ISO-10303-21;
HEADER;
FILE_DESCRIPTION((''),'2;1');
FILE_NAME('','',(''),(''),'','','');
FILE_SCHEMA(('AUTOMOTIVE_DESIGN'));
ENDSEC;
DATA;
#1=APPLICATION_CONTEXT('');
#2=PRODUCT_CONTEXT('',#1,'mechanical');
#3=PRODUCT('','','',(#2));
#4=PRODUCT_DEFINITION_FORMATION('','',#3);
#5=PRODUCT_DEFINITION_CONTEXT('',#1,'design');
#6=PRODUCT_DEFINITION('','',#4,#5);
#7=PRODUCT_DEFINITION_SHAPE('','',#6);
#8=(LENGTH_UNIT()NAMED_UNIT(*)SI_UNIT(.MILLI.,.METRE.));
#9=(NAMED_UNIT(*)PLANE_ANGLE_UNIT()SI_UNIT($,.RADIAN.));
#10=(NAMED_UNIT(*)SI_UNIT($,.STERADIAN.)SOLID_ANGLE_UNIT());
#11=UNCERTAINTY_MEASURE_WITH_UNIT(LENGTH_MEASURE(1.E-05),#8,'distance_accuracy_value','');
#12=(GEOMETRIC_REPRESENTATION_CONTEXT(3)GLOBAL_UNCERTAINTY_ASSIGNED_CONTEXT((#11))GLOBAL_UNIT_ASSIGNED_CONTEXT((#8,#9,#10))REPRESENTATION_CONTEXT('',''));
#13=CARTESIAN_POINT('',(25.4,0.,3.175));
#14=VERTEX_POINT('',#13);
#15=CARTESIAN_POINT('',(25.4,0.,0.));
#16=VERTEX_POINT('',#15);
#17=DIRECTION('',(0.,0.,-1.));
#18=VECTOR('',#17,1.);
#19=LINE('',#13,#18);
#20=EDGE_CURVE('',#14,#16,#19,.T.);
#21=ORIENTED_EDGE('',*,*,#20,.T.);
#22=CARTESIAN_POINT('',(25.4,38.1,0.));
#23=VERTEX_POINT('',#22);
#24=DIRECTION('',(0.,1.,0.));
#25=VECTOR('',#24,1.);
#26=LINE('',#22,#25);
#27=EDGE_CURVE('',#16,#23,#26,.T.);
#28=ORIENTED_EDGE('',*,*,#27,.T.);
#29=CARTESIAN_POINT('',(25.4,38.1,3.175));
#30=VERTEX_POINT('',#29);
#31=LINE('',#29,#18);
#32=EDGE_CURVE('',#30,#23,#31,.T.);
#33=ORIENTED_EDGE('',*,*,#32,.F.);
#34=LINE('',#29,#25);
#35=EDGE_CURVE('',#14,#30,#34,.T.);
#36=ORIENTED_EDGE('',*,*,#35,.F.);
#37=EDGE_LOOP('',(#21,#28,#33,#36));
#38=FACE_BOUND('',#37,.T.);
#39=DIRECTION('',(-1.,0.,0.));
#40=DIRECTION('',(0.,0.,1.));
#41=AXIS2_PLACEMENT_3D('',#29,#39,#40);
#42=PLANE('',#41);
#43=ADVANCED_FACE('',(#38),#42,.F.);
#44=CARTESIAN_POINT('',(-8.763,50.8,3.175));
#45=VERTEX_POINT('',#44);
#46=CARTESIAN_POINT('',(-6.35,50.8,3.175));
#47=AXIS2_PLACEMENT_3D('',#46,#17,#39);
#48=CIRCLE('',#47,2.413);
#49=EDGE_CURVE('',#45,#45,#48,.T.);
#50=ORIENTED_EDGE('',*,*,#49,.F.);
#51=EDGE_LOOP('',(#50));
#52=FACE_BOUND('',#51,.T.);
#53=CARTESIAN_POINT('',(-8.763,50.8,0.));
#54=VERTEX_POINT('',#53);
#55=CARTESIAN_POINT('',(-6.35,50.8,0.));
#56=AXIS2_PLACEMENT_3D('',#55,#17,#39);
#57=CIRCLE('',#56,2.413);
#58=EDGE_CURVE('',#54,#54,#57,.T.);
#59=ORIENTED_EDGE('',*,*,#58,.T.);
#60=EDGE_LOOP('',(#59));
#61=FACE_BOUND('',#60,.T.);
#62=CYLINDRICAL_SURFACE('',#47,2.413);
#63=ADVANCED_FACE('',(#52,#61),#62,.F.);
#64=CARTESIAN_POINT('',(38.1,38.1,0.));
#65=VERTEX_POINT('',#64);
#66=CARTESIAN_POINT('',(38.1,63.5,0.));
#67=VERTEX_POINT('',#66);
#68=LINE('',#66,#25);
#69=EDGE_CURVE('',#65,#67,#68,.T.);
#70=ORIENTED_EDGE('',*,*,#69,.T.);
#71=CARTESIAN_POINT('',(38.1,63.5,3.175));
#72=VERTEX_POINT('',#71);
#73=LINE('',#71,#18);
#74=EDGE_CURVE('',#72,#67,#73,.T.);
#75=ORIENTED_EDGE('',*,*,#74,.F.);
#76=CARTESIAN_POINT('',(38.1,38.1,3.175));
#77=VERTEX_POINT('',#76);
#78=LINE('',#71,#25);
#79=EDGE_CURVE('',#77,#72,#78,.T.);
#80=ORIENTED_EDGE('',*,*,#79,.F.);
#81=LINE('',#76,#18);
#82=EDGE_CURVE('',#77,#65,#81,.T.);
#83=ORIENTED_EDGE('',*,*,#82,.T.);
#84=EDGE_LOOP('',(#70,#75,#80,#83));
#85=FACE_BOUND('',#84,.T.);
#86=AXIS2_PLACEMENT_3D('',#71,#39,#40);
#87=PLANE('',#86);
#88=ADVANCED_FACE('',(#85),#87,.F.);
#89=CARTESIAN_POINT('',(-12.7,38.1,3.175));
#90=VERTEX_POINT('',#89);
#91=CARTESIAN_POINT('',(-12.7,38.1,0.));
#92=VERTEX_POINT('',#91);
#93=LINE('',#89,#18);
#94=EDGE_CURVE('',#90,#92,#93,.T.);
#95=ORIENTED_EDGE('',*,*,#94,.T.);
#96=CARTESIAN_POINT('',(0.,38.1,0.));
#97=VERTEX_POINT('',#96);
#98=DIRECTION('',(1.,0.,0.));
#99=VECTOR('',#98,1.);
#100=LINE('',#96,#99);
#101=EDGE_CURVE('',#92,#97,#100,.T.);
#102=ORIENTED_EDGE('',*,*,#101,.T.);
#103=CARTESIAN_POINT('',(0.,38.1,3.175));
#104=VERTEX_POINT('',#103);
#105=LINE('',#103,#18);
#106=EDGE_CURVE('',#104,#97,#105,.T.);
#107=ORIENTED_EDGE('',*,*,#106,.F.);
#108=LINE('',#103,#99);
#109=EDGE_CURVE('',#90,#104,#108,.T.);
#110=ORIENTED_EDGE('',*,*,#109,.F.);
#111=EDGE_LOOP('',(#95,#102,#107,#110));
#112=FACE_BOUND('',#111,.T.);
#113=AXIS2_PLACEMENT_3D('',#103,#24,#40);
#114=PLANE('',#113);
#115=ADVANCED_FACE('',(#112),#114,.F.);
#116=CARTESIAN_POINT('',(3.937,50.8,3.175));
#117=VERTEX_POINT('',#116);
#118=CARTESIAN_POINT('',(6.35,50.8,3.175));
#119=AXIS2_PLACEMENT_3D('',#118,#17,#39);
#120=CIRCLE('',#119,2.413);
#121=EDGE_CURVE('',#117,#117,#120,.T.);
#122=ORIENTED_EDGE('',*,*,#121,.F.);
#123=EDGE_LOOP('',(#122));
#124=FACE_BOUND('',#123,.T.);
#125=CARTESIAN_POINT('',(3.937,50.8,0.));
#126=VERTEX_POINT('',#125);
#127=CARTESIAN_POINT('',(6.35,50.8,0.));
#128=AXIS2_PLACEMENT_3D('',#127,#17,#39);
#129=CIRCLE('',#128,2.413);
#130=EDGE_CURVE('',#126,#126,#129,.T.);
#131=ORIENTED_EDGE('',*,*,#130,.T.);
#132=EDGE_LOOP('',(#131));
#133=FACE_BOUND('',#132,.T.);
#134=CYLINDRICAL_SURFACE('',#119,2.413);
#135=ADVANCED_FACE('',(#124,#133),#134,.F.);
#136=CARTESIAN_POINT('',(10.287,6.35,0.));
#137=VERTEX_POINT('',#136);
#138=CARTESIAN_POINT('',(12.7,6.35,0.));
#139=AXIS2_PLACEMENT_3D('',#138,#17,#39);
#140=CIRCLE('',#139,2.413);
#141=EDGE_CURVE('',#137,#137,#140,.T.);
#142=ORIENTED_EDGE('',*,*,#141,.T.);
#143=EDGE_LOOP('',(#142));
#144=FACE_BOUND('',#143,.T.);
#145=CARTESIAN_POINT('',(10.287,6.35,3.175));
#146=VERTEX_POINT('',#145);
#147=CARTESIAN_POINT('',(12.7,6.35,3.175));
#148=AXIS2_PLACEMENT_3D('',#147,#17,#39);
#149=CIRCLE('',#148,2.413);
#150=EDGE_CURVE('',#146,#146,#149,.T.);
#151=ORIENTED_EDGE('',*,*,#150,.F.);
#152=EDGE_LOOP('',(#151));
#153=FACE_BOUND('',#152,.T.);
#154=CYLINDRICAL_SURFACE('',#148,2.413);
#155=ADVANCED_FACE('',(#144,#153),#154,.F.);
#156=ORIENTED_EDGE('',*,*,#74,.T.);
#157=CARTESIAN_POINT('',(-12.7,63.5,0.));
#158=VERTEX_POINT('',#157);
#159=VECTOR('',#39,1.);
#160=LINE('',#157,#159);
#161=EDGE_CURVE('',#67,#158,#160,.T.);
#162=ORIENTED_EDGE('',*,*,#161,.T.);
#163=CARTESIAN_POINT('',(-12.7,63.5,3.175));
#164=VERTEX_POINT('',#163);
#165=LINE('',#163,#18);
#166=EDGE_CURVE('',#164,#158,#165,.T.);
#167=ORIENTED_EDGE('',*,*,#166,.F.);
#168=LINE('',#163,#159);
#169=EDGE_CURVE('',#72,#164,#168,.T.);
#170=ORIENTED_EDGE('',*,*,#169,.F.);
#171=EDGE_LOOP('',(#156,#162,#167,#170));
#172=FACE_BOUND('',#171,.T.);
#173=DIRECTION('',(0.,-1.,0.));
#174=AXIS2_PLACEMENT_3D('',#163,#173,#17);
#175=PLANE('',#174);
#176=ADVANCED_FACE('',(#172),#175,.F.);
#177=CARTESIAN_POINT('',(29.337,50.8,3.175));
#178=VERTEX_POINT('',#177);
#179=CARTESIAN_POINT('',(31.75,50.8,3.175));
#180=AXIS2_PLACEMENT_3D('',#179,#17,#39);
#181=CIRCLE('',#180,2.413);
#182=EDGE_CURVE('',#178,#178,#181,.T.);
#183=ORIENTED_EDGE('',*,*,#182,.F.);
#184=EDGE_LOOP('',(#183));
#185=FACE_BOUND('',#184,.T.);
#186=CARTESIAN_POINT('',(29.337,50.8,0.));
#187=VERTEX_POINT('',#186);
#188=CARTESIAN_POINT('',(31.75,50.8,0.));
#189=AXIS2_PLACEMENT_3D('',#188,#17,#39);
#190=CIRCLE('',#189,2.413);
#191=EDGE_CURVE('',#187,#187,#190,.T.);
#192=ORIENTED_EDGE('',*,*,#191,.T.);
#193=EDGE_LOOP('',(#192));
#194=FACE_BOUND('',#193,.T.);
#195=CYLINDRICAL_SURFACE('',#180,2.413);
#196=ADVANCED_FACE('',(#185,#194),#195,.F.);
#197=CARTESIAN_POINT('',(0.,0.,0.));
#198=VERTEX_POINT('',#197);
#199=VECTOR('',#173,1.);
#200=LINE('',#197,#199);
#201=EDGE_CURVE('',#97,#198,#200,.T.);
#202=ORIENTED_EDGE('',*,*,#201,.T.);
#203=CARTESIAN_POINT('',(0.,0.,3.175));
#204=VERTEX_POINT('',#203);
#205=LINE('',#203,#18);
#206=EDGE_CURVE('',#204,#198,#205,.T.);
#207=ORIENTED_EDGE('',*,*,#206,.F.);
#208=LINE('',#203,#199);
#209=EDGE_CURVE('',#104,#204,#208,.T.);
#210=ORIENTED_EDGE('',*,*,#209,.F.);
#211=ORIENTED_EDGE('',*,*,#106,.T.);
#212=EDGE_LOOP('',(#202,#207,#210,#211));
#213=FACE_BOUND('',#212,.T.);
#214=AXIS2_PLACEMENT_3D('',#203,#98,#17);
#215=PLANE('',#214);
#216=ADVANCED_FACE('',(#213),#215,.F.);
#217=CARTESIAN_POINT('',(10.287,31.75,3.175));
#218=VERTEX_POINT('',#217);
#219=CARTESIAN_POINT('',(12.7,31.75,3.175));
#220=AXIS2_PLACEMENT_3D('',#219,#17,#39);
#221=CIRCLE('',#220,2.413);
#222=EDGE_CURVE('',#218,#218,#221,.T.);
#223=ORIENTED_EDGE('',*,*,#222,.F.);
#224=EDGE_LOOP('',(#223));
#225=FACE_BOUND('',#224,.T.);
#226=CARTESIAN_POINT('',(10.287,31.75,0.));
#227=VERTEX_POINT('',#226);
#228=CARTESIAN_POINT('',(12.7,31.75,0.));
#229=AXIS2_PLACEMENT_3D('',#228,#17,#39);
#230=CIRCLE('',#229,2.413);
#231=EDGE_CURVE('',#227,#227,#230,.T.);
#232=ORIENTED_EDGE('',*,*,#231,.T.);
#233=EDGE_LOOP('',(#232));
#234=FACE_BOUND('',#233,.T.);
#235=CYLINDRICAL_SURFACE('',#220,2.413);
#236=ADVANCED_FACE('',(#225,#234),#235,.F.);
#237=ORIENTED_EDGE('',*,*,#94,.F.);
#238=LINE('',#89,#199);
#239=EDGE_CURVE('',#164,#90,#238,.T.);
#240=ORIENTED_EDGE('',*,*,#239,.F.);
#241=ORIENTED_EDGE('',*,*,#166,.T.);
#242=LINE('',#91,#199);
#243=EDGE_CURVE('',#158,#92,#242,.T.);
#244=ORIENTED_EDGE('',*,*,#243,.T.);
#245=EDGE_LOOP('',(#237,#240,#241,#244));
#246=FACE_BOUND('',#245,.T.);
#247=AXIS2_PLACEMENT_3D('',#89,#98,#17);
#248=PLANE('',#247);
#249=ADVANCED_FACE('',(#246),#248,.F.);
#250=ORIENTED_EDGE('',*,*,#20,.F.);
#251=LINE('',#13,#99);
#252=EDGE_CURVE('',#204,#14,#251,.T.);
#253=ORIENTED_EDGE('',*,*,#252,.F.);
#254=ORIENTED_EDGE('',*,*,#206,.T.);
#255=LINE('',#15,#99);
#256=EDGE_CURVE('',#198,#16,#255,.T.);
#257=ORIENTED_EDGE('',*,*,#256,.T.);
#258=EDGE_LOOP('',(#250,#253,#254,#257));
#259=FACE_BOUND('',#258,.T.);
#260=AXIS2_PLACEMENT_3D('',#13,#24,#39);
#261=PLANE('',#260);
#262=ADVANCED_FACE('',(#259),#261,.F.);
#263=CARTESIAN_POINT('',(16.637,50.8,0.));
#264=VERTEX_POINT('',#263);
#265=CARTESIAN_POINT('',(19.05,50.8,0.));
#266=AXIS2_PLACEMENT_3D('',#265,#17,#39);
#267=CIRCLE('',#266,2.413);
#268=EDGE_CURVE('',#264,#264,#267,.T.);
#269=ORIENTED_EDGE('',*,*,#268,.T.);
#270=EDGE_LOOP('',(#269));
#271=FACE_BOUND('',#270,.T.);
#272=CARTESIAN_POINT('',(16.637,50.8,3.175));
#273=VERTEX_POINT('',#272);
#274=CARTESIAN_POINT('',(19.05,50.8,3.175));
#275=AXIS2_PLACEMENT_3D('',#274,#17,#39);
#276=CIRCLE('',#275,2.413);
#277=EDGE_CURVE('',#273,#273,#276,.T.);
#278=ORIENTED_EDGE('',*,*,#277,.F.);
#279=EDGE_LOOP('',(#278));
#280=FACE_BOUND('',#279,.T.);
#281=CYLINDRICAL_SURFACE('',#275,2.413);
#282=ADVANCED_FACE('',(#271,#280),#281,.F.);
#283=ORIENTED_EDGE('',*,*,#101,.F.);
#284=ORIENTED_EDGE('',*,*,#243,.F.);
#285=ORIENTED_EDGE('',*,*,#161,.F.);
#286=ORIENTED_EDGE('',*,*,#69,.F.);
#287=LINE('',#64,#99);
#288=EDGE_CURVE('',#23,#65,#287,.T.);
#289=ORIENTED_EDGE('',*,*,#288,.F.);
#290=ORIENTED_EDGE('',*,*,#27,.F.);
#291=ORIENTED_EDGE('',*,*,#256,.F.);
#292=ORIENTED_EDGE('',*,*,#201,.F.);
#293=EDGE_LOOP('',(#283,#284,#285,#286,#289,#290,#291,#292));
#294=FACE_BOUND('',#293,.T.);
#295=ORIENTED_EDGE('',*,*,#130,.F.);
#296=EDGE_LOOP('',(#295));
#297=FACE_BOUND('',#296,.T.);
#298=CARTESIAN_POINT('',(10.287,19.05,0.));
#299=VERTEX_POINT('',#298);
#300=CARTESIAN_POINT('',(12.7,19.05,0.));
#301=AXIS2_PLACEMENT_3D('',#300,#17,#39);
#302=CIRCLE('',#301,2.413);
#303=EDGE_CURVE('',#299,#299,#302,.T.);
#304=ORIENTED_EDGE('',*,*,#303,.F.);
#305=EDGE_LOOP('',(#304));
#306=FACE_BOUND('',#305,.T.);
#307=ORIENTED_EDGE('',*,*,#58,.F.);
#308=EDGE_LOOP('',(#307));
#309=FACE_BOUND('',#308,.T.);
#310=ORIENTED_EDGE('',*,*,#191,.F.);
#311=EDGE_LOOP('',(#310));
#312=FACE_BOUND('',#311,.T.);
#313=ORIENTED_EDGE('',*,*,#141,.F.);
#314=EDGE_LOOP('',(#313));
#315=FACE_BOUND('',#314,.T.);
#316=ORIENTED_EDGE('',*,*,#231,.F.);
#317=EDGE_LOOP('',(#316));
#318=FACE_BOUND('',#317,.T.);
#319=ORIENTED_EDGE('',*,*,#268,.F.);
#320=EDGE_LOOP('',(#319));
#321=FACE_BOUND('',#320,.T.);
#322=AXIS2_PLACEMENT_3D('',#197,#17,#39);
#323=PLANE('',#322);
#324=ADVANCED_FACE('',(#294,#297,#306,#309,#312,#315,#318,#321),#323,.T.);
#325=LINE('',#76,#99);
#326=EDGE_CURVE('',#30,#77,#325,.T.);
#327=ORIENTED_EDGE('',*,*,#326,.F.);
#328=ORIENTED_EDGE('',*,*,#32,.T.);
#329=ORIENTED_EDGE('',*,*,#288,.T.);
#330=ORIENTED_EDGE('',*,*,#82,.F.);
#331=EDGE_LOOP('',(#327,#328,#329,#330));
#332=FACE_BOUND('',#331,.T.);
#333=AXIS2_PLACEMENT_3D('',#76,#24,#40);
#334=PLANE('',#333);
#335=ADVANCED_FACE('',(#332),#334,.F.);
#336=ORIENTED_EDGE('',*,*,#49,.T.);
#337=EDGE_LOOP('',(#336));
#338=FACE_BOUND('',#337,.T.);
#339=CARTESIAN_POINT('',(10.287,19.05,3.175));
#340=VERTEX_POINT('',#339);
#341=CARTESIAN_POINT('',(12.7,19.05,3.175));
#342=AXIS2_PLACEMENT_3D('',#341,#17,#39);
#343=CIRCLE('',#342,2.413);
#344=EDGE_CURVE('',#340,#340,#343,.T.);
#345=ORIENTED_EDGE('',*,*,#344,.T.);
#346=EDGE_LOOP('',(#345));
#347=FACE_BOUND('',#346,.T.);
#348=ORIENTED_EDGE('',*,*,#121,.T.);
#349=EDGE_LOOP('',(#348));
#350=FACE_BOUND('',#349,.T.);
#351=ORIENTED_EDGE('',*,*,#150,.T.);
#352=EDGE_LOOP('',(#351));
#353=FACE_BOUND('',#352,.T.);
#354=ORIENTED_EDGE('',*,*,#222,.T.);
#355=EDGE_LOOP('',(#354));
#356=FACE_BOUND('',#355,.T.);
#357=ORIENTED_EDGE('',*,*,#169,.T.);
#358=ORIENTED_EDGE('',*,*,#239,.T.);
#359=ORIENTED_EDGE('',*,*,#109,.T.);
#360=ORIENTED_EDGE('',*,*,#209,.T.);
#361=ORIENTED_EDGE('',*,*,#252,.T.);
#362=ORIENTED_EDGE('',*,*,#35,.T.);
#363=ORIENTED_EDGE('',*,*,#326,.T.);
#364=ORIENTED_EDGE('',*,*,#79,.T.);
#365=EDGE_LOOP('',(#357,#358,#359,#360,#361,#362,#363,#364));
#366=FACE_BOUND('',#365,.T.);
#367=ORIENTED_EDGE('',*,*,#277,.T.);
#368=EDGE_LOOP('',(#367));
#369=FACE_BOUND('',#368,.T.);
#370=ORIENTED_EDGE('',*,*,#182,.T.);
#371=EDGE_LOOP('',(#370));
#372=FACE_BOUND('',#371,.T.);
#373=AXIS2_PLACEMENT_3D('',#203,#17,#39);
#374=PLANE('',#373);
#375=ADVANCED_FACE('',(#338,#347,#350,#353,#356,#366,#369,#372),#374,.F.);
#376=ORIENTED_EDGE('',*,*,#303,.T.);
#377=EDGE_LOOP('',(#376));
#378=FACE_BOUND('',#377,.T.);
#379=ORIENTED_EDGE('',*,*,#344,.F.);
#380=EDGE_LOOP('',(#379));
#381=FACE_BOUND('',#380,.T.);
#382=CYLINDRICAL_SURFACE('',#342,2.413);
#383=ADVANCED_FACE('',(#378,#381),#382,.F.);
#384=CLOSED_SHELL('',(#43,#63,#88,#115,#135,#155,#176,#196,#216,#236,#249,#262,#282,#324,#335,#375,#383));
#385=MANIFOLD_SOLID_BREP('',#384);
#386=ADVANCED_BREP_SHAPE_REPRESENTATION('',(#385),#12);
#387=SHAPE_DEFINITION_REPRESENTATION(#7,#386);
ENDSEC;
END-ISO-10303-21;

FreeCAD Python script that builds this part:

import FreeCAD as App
import Part
import Sketcher
Q = App.Units.Quantity


def add_polygon(sketch, points):
    """Adds a closed chain of lines whose ends are joined by coincident constraints."""
    first, n = sketch.GeometryCount, len(points)
    for a, b in zip(points, points[1:] + points[:1]):
        sketch.addGeometry(Part.LineSegment(App.Vector(*a, 0), App.Vector(*b, 0)), False)
    for i in range(n):
        sketch.addConstraint(Sketcher.Constraint("Coincident", first + i, 2, first + (i + 1) % n, 1))

doc = App.newDocument("Part")
params = doc.addObject("Spreadsheet::Sheet", "Params")
for row, (alias, value) in enumerate([
    ("sketch1_width", "1 in"),
    ("sketch1_width2", "2 in"),
    ("sketch1_height", "1.5 in"),
    ("pad1_length", "0.125 in"),
    ("sketch2_diameter", "0.19 in"),
    ("sketch3_diameter", "0.19 in"),
], start=1):
    params.set(f"A{row}", alias)
    params.set(f"B{row}", "=" + value)
    params.setAlias(f"B{row}", alias)

body = doc.addObject("PartDesign::Body", "Body")

sketch1 = doc.addObject("Sketcher::SketchObject", "Sketch")
body.addObject(sketch1)
sketch1.AttachmentSupport = (doc.XY_Plane, [""])
sketch1.MapMode = "FlatFace"
add_polygon(sketch1, [(0, 38), (0, 0), (25, 0), (25, 38), (38, 38), (38, 64), (-13, 64), (-13, 38)])
sketch1.addConstraint(Sketcher.Constraint("Vertical", 0))
sketch1.addConstraint(Sketcher.Constraint("Horizontal", 1))
sketch1.addConstraint(Sketcher.Constraint("Vertical", 2))
sketch1.addConstraint(Sketcher.Constraint("Horizontal", 3))
sketch1.addConstraint(Sketcher.Constraint("Vertical", 4))
sketch1.addConstraint(Sketcher.Constraint("Horizontal", 5))
sketch1.addConstraint(Sketcher.Constraint("Vertical", 6))
sketch1.addConstraint(Sketcher.Constraint("Horizontal", 7))
sketch1.addConstraint(Sketcher.Constraint("Coincident", 0, 2, -1, 1))
sketch1.addConstraint(Sketcher.Constraint("Horizontal", 3, 2, 6, 2))
sketch1.addConstraint(Sketcher.Constraint("Equal", 3, 7))
sketch1.addConstraint(Sketcher.Constraint("Equal", 1, 4))
sketch1.addConstraint(Sketcher.Constraint("DistanceX", 1, 1, 1, 2, Q("1 in")))
sketch1.addConstraint(Sketcher.Constraint("DistanceX", 5, 2, 5, 1, Q("2 in")))
sketch1.addConstraint(Sketcher.Constraint("DistanceY", 0, 2, 0, 1, Q("1.5 in")))
sketch1.setExpression("Constraints[20]", "Params.sketch1_width")
sketch1.setExpression("Constraints[21]", "Params.sketch1_width2")
sketch1.setExpression("Constraints[22]", "Params.sketch1_height")
pad1 = doc.addObject("PartDesign::Pad", "Pad")
body.addObject(pad1)
pad1.Profile = sketch1
pad1.setExpression("Length", "Params.pad1_length")

sketch2 = doc.addObject("Sketcher::SketchObject", "Sketch001")
body.addObject(sketch2)
sketch2.AttachmentSupport = (doc.XY_Plane, [""])
sketch2.MapMode = "FlatFace"
sketch2.addGeometry(Part.Circle(App.Vector(19.1, 50.8, 0), App.Vector(0, 0, 1), 2.4), False)
sketch2.addGeometry(Part.Circle(App.Vector(6.3, 50.8, 0), App.Vector(0, 0, 1), 2.4), False)
sketch2.addGeometry(Part.Circle(App.Vector(-6.3, 50.8, 0), App.Vector(0, 0, 1), 2.4), False)
sketch2.addGeometry(Part.Circle(App.Vector(31.8, 50.8, 0), App.Vector(0, 0, 1), 2.4), False)
sketch2.addConstraint(Sketcher.Constraint("Equal", 0, 1))
sketch2.addConstraint(Sketcher.Constraint("Equal", 1, 2))
sketch2.addConstraint(Sketcher.Constraint("Equal", 2, 3))
sketch2.addConstraint(Sketcher.Constraint("Symmetric", 1, 3, 2, 3, -2))
sketch2.addConstraint(Sketcher.Constraint("Horizontal", 0, 3, 1, 3))
sketch2.addConstraint(Sketcher.Constraint("Horizontal", 2, 3, 3, 3))
sketch2.addConstraint(Sketcher.Constraint("Diameter", 0, Q("0.19 in")))
sketch2.addConstraint(Sketcher.Constraint("DistanceY", -1, 1, 0, 3, Q("2 in")))
sketch2.addConstraint(Sketcher.Constraint("DistanceX", 2, 3, 0, 3, Q("1 in")))
sketch2.addConstraint(Sketcher.Constraint("DistanceX", 1, 3, 3, 3, Q("1 in")))
sketch2.addConstraint(Sketcher.Constraint("DistanceX", 1, 3, 0, 3, Q("0.5 in")))
sketch2.setExpression("Constraints[6]", "Params.sketch2_diameter")
pocket1 = doc.addObject("PartDesign::Pocket", "Pocket")
body.addObject(pocket1)
pocket1.Profile = sketch2
pocket1.Type = "ThroughAll"
pocket1.Reversed = True

sketch3 = doc.addObject("Sketcher::SketchObject", "Sketch002")
body.addObject(sketch3)
sketch3.AttachmentSupport = (doc.XY_Plane, [""])
sketch3.MapMode = "FlatFace"
sketch3.addGeometry(Part.Circle(App.Vector(12.7, 19.1, 0), App.Vector(0, 0, 1), 2.4), False)
sketch3.addGeometry(Part.Circle(App.Vector(12.7, 31.8, 0), App.Vector(0, 0, 1), 2.4), False)
sketch3.addGeometry(Part.Circle(App.Vector(12.7, 6.3, 0), App.Vector(0, 0, 1), 2.4), False)
sketch3.addConstraint(Sketcher.Constraint("Equal", 0, 1))
sketch3.addConstraint(Sketcher.Constraint("Equal", 1, 2))
sketch3.addConstraint(Sketcher.Constraint("Vertical", 0, 3, 1, 3))
sketch3.addConstraint(Sketcher.Constraint("Vertical", 1, 3, 2, 3))
sketch3.addConstraint(Sketcher.Constraint("Diameter", 0, Q("0.19 in")))
sketch3.addConstraint(Sketcher.Constraint("DistanceY", 2, 3, 1, 3, Q("1 in")))
sketch3.addConstraint(Sketcher.Constraint("DistanceX", -1, 1, 0, 3, Q("0.5 in")))
sketch3.addConstraint(Sketcher.Constraint("DistanceY", 0, 3, 1, 3, Q("0.5 in")))
sketch3.addConstraint(Sketcher.Constraint("DistanceY", -1, 1, 0, 3, Q("0.75 in")))
sketch3.setExpression("Constraints[4]", "Params.sketch3_diameter")
pocket2 = doc.addObject("PartDesign::Pocket", "Pocket001")
body.addObject(pocket2)
pocket2.Profile = sketch3
pocket2.Type = "ThroughAll"
pocket2.Reversed = True

doc.recompute()
